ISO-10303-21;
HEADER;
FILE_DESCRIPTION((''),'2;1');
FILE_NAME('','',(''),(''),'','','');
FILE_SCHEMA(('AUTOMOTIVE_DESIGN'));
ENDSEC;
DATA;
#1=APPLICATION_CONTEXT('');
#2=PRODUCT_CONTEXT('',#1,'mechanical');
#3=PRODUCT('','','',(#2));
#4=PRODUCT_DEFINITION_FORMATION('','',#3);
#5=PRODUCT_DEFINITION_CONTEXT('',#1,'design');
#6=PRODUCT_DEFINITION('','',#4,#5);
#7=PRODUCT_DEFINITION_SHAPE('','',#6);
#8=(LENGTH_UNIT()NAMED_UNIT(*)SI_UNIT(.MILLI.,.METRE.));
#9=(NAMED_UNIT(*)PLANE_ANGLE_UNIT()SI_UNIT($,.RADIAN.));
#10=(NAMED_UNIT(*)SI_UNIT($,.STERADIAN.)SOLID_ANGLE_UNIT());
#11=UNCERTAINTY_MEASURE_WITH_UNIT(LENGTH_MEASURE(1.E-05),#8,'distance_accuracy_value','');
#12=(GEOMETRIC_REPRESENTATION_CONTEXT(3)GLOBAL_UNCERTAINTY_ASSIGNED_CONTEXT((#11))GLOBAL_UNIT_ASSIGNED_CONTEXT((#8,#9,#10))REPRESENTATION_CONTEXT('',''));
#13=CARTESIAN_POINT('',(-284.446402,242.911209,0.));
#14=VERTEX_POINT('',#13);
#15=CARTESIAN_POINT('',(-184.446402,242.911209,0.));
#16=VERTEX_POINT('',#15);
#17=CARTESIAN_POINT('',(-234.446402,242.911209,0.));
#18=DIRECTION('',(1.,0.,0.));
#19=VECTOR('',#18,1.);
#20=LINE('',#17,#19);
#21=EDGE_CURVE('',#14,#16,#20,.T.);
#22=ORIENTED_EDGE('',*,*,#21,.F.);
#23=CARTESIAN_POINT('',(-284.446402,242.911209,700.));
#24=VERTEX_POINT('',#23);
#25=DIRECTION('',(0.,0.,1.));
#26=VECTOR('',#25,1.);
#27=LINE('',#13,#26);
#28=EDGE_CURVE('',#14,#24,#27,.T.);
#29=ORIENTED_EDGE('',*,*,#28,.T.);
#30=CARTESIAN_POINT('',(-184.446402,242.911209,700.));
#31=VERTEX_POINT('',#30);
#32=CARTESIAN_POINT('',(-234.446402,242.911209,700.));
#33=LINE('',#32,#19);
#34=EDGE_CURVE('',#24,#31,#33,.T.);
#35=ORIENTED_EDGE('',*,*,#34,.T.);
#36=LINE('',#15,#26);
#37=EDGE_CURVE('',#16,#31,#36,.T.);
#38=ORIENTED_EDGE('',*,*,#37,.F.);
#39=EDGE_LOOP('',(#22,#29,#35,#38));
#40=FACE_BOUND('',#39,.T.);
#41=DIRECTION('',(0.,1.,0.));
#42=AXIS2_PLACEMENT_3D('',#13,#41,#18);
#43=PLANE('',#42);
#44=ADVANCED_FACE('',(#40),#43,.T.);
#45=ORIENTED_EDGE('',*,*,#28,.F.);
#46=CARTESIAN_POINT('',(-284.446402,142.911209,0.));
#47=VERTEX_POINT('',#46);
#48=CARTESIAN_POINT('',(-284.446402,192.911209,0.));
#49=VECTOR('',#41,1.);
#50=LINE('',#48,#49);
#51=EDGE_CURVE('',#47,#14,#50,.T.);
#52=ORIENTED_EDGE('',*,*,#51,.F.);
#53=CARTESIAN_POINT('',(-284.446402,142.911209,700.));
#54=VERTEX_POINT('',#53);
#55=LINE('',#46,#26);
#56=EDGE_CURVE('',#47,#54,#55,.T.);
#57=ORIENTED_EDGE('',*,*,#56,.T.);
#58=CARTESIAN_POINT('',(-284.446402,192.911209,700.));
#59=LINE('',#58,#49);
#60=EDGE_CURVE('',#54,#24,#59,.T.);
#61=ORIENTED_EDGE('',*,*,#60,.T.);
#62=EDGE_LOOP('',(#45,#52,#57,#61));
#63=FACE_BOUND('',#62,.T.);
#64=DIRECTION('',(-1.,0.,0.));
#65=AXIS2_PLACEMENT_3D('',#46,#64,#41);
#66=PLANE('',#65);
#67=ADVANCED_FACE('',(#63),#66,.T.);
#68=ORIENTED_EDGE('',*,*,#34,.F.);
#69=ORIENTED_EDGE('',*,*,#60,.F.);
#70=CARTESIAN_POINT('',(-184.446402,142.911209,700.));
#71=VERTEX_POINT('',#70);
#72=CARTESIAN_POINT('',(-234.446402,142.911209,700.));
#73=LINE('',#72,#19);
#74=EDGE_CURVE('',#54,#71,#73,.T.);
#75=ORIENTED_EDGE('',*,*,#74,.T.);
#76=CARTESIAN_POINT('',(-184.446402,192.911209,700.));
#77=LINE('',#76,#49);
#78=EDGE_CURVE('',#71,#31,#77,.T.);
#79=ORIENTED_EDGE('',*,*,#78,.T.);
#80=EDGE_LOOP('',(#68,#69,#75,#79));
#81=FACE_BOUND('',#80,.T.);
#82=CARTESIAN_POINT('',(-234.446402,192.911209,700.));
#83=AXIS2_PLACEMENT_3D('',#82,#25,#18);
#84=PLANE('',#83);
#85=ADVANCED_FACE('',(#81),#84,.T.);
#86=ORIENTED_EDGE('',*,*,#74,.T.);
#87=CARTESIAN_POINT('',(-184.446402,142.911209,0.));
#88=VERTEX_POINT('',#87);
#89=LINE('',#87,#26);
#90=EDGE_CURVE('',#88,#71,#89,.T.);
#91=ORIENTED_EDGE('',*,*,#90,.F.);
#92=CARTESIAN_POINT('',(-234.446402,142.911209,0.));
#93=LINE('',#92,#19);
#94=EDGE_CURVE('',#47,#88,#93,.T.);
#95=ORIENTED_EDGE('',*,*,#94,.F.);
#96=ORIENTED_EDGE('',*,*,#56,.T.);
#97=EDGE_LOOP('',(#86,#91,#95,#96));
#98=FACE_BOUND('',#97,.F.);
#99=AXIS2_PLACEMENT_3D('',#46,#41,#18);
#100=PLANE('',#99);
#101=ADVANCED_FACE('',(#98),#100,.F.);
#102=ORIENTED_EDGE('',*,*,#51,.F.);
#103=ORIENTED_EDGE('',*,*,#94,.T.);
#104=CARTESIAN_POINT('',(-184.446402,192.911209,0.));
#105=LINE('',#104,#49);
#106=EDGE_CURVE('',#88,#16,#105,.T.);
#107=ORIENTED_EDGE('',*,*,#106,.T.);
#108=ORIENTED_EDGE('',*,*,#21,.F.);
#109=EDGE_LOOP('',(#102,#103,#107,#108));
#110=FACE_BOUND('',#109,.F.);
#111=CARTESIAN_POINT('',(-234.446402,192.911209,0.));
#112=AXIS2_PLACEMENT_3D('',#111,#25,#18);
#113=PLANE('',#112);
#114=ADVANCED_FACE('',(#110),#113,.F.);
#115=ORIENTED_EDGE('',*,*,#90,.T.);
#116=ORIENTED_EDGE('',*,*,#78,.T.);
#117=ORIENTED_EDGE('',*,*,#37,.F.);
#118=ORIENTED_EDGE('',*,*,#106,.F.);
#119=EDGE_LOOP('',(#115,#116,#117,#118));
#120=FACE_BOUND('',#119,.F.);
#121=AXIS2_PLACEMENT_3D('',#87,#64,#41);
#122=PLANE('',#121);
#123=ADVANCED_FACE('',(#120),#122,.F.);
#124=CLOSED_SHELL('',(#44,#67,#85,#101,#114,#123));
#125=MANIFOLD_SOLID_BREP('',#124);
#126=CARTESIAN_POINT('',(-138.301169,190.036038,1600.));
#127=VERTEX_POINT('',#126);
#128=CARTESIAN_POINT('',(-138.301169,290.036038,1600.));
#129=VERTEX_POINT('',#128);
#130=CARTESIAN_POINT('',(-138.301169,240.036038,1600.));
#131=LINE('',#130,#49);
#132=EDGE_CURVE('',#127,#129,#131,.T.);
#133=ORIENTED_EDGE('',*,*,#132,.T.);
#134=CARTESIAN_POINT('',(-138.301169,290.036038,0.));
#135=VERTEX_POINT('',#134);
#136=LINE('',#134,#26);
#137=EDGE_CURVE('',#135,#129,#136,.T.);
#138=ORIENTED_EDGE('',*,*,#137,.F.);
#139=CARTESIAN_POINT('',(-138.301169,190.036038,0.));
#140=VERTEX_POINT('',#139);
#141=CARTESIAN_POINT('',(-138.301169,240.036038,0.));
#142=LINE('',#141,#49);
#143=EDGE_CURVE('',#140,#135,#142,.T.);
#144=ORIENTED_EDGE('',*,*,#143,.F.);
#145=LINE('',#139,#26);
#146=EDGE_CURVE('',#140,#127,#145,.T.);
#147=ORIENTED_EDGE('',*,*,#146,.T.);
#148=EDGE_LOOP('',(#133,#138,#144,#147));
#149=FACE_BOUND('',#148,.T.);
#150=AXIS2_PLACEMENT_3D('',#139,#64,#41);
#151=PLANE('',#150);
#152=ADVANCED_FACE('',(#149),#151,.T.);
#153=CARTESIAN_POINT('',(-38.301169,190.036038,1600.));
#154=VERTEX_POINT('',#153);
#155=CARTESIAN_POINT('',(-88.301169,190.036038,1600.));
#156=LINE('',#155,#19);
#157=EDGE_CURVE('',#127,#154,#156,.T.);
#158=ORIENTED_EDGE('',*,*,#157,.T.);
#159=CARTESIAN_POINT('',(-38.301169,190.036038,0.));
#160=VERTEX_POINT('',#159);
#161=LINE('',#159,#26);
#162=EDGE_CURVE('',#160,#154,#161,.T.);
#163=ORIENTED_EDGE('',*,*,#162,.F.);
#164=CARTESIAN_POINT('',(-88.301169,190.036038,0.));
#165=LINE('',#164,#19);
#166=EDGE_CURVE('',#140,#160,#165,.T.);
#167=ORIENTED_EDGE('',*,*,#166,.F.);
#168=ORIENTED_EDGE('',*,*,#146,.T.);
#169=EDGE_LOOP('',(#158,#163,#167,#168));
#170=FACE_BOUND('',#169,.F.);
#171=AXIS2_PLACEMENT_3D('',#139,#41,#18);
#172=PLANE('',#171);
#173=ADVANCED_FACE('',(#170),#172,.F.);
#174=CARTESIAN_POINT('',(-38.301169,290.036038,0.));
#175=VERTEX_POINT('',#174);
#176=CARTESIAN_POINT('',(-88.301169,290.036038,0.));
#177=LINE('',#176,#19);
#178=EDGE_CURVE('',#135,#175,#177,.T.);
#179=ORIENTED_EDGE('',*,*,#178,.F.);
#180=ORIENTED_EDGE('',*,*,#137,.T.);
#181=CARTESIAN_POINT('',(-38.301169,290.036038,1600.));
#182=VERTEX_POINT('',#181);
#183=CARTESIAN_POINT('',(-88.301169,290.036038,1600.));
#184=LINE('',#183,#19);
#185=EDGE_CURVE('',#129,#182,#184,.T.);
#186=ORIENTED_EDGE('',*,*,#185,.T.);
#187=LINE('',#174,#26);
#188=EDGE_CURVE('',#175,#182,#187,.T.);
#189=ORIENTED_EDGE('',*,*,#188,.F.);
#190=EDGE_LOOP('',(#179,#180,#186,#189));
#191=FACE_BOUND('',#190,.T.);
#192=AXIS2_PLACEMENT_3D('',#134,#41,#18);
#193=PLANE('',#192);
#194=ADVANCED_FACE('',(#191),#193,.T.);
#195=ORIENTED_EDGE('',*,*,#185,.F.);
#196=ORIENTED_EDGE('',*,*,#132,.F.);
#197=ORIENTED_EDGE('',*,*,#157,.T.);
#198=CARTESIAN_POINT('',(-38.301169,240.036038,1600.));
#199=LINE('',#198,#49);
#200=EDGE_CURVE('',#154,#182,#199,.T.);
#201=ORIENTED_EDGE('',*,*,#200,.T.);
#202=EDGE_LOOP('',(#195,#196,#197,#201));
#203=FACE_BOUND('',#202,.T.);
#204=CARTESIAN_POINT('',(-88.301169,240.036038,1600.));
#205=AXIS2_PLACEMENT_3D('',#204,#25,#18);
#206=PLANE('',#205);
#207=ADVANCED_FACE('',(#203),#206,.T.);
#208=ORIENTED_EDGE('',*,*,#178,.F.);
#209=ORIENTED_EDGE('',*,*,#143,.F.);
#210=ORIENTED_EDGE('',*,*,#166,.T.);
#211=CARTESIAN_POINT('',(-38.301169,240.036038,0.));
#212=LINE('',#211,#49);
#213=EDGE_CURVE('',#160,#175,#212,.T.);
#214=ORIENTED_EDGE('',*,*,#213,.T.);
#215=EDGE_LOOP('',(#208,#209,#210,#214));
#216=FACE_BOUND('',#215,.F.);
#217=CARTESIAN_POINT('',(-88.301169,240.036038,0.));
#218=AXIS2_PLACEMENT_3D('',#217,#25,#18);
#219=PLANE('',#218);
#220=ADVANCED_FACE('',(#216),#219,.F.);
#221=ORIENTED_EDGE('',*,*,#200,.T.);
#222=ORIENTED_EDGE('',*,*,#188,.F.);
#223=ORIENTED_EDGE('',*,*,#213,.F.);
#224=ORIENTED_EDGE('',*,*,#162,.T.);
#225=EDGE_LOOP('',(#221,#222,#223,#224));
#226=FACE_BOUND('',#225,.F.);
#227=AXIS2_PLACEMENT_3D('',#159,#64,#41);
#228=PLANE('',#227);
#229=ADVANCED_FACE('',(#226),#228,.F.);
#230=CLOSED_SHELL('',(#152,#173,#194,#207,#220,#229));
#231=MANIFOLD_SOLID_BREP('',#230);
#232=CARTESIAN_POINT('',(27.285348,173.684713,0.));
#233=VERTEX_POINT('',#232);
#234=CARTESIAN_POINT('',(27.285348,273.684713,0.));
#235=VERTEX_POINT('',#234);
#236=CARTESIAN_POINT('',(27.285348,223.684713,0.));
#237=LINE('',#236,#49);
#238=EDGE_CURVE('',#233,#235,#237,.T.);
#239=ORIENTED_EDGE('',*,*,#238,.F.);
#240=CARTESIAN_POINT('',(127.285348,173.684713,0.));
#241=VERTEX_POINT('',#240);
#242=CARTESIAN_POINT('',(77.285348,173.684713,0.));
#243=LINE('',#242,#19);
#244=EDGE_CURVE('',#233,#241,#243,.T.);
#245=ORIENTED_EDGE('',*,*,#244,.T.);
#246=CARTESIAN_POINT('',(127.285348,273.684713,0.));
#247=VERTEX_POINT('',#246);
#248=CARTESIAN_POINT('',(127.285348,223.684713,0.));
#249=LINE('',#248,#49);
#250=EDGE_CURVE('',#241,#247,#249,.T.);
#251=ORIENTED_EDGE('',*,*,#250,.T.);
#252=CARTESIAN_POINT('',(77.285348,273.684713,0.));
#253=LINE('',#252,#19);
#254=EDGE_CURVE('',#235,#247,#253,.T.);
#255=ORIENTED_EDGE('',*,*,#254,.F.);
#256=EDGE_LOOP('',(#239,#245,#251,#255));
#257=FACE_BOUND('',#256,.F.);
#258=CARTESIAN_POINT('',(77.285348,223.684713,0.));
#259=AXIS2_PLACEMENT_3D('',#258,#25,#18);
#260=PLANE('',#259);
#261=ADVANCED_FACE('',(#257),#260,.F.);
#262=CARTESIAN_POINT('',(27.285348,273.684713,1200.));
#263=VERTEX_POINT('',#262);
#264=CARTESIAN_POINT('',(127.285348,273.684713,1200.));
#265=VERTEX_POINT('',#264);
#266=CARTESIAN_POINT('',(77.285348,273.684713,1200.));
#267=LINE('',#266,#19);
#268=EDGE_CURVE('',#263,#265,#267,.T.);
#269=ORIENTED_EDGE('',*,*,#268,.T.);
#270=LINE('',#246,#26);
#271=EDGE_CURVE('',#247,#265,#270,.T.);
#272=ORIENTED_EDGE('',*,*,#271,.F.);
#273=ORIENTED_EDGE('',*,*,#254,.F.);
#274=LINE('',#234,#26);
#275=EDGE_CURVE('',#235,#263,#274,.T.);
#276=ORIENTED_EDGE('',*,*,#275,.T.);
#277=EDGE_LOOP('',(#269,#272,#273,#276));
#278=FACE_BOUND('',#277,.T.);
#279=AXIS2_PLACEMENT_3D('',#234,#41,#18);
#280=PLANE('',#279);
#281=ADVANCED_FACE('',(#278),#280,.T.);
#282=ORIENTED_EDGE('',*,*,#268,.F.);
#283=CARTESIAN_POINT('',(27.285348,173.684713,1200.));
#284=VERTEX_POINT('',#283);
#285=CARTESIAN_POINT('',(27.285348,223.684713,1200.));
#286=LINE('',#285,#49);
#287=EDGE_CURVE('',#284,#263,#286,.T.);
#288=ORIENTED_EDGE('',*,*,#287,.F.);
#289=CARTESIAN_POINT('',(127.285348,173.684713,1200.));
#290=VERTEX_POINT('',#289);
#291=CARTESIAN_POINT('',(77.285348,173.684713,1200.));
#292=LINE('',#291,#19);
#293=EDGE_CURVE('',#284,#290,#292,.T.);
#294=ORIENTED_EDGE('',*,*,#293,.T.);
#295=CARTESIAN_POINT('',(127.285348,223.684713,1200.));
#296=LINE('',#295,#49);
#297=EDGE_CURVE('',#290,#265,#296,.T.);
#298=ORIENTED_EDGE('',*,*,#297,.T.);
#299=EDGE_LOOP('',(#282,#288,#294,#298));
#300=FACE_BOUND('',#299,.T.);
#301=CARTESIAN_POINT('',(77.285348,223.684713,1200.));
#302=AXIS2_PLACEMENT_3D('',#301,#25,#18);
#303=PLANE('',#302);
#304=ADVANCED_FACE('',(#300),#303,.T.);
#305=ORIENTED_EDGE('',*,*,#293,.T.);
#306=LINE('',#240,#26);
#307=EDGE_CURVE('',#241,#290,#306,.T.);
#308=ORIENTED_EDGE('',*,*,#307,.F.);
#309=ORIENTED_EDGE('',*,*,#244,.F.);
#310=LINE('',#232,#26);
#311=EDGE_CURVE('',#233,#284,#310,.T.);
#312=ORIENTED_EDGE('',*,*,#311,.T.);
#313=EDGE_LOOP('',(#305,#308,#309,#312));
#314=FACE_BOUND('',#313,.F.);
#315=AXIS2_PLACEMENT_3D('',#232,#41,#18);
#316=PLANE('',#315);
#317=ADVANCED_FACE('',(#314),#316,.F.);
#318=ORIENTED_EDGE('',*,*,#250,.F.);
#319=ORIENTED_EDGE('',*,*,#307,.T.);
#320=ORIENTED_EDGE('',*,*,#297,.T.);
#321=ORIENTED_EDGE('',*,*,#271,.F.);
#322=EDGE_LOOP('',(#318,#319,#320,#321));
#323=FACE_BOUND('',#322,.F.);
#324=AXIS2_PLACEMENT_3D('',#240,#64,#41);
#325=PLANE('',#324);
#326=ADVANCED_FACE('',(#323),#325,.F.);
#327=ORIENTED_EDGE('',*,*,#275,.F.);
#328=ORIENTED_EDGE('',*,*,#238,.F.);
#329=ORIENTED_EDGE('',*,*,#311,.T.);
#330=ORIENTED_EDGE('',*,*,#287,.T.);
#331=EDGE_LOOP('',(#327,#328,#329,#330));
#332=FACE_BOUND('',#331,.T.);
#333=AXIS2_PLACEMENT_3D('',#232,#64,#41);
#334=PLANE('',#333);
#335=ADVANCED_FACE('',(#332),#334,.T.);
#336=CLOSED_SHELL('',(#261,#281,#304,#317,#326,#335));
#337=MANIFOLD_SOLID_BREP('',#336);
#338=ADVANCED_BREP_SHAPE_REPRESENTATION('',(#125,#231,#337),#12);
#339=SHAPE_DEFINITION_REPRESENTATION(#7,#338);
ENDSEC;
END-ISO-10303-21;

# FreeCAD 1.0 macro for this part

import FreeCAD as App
import Part
import Sketcher
from FreeCAD import Vector
Q = App.Units.Quantity

doc = App.newDocument("Part")
body = doc.addObject("PartDesign::Body", "Body")

sketch1 = doc.addObject("Sketcher::SketchObject", "Sketch")
body.addObject(sketch1)
sketch1.AttachmentSupport = (doc.XY_Plane, [""])
sketch1.MapMode = "FlatFace"
sketch1.addGeometry(Part.LineSegment(Vector(-284, 243, 0), Vector(-284, 143, 0)), False)
sketch1.addGeometry(Part.LineSegment(Vector(-284, 143, 0), Vector(-184, 143, 0)), False)
sketch1.addGeometry(Part.LineSegment(Vector(-184, 143, 0), Vector(-184, 243, 0)), False)
sketch1.addGeometry(Part.LineSegment(Vector(-184, 243, 0), Vector(-284, 243, 0)), False)
sketch1.addConstraint(Sketcher.Constraint("Coincident", 0, 2, 1, 1))
sketch1.addConstraint(Sketcher.Constraint("Coincident", 1, 2, 2, 1))
sketch1.addConstraint(Sketcher.Constraint("Coincident", 2, 2, 3, 1))
sketch1.addConstraint(Sketcher.Constraint("Coincident", 3, 2, 0, 1))
sketch1.addConstraint(Sketcher.Constraint("Vertical", 0))
sketch1.addConstraint(Sketcher.Constraint("Horizontal", 1))
sketch1.addConstraint(Sketcher.Constraint("Vertical", 2))
sketch1.addConstraint(Sketcher.Constraint("Horizontal", 3))
sketch1.addConstraint(Sketcher.Constraint("Equal", 3, 0))
sketch1.addConstraint(Sketcher.Constraint("DistanceX", 1, 1, 1, 2, Q("100 mm")))
sketch1.addConstraint(Sketcher.Constraint("DistanceX", 0, 2, -1, 1, Q("284.446402 mm")))
sketch1.addConstraint(Sketcher.Constraint("DistanceY", -1, 1, 0, 2, Q("142.911209 mm")))
pad1 = doc.addObject("PartDesign::Pad", "Pad")
body.addObject(pad1)
pad1.Profile = sketch1
pad1.Length = 700
body2 = doc.addObject("PartDesign::Body", "Body001")

sketch2 = doc.addObject("Sketcher::SketchObject", "Sketch001")
body2.addObject(sketch2)
sketch2.AttachmentSupport = (doc.getObject("XY_Plane001"), [""])
sketch2.MapMode = "FlatFace"
sketch2.addGeometry(Part.LineSegment(Vector(-138, 290, 0), Vector(-138, 190, 0)), False)
sketch2.addGeometry(Part.LineSegment(Vector(-138, 190, 0), Vector(-38, 190, 0)), False)
sketch2.addGeometry(Part.LineSegment(Vector(-38, 190, 0), Vector(-38, 290, 0)), False)
sketch2.addGeometry(Part.LineSegment(Vector(-38, 290, 0), Vector(-138, 290, 0)), False)
sketch2.addConstraint(Sketcher.Constraint("Coincident", 0, 2, 1, 1))
sketch2.addConstraint(Sketcher.Constraint("Coincident", 1, 2, 2, 1))
sketch2.addConstraint(Sketcher.Constraint("Coincident", 2, 2, 3, 1))
sketch2.addConstraint(Sketcher.Constraint("Coincident", 3, 2, 0, 1))
sketch2.addConstraint(Sketcher.Constraint("Vertical", 0))
sketch2.addConstraint(Sketcher.Constraint("Horizontal", 1))
sketch2.addConstraint(Sketcher.Constraint("Vertical", 2))
sketch2.addConstraint(Sketcher.Constraint("Horizontal", 3))
sketch2.addConstraint(Sketcher.Constraint("Equal", 3, 0))
sketch2.addConstraint(Sketcher.Constraint("DistanceX", 1, 1, 1, 2, Q("100 mm")))
sketch2.addConstraint(Sketcher.Constraint("DistanceX", 0, 2, -1, 1, Q("138.301169 mm")))
sketch2.addConstraint(Sketcher.Constraint("DistanceY", -1, 1, 2, 2, Q("290.036038 mm")))
pad2 = doc.addObject("PartDesign::Pad", "Pad001")
body2.addObject(pad2)
pad2.Profile = sketch2
pad2.Length = 1600
body3 = doc.addObject("PartDesign::Body", "Body002")

sketch3 = doc.addObject("Sketcher::SketchObject", "Sketch002")
body3.addObject(sketch3)
sketch3.AttachmentSupport = (doc.getObject("XY_Plane002"), [""])
sketch3.MapMode = "FlatFace"
sketch3.addGeometry(Part.LineSegment(Vector(27, 274, 0), Vector(27, 174, 0)), False)
sketch3.addGeometry(Part.LineSegment(Vector(27, 174, 0), Vector(127, 174, 0)), False)
sketch3.addGeometry(Part.LineSegment(Vector(127, 174, 0), Vector(127, 274, 0)), False)
sketch3.addGeometry(Part.LineSegment(Vector(127, 274, 0), Vector(27, 274, 0)), False)
sketch3.addConstraint(Sketcher.Constraint("Coincident", 0, 2, 1, 1))
sketch3.addConstraint(Sketcher.Constraint("Coincident", 1, 2, 2, 1))
sketch3.addConstraint(Sketcher.Constraint("Coincident", 2, 2, 3, 1))
sketch3.addConstraint(Sketcher.Constraint("Coincident", 3, 2, 0, 1))
sketch3.addConstraint(Sketcher.Constraint("Vertical", 0))
sketch3.addConstraint(Sketcher.Constraint("Horizontal", 1))
sketch3.addConstraint(Sketcher.Constraint("Vertical", 2))
sketch3.addConstraint(Sketcher.Constraint("Horizontal", 3))
sketch3.addConstraint(Sketcher.Constraint("Equal", 3, 0))
sketch3.addConstraint(Sketcher.Constraint("DistanceX", 1, 1, 1, 2, Q("100 mm")))
sketch3.addConstraint(Sketcher.Constraint("DistanceX", -1, 1, 1, 2, Q("127.285348 mm")))
sketch3.addConstraint(Sketcher.Constraint("DistanceY", -1, 1, 0, 2, Q("173.684713 mm")))
pad3 = doc.addObject("PartDesign::Pad", "Pad002")
body3.addObject(pad3)
pad3.Profile = sketch3
pad3.Length = 1200

doc.recompute()
